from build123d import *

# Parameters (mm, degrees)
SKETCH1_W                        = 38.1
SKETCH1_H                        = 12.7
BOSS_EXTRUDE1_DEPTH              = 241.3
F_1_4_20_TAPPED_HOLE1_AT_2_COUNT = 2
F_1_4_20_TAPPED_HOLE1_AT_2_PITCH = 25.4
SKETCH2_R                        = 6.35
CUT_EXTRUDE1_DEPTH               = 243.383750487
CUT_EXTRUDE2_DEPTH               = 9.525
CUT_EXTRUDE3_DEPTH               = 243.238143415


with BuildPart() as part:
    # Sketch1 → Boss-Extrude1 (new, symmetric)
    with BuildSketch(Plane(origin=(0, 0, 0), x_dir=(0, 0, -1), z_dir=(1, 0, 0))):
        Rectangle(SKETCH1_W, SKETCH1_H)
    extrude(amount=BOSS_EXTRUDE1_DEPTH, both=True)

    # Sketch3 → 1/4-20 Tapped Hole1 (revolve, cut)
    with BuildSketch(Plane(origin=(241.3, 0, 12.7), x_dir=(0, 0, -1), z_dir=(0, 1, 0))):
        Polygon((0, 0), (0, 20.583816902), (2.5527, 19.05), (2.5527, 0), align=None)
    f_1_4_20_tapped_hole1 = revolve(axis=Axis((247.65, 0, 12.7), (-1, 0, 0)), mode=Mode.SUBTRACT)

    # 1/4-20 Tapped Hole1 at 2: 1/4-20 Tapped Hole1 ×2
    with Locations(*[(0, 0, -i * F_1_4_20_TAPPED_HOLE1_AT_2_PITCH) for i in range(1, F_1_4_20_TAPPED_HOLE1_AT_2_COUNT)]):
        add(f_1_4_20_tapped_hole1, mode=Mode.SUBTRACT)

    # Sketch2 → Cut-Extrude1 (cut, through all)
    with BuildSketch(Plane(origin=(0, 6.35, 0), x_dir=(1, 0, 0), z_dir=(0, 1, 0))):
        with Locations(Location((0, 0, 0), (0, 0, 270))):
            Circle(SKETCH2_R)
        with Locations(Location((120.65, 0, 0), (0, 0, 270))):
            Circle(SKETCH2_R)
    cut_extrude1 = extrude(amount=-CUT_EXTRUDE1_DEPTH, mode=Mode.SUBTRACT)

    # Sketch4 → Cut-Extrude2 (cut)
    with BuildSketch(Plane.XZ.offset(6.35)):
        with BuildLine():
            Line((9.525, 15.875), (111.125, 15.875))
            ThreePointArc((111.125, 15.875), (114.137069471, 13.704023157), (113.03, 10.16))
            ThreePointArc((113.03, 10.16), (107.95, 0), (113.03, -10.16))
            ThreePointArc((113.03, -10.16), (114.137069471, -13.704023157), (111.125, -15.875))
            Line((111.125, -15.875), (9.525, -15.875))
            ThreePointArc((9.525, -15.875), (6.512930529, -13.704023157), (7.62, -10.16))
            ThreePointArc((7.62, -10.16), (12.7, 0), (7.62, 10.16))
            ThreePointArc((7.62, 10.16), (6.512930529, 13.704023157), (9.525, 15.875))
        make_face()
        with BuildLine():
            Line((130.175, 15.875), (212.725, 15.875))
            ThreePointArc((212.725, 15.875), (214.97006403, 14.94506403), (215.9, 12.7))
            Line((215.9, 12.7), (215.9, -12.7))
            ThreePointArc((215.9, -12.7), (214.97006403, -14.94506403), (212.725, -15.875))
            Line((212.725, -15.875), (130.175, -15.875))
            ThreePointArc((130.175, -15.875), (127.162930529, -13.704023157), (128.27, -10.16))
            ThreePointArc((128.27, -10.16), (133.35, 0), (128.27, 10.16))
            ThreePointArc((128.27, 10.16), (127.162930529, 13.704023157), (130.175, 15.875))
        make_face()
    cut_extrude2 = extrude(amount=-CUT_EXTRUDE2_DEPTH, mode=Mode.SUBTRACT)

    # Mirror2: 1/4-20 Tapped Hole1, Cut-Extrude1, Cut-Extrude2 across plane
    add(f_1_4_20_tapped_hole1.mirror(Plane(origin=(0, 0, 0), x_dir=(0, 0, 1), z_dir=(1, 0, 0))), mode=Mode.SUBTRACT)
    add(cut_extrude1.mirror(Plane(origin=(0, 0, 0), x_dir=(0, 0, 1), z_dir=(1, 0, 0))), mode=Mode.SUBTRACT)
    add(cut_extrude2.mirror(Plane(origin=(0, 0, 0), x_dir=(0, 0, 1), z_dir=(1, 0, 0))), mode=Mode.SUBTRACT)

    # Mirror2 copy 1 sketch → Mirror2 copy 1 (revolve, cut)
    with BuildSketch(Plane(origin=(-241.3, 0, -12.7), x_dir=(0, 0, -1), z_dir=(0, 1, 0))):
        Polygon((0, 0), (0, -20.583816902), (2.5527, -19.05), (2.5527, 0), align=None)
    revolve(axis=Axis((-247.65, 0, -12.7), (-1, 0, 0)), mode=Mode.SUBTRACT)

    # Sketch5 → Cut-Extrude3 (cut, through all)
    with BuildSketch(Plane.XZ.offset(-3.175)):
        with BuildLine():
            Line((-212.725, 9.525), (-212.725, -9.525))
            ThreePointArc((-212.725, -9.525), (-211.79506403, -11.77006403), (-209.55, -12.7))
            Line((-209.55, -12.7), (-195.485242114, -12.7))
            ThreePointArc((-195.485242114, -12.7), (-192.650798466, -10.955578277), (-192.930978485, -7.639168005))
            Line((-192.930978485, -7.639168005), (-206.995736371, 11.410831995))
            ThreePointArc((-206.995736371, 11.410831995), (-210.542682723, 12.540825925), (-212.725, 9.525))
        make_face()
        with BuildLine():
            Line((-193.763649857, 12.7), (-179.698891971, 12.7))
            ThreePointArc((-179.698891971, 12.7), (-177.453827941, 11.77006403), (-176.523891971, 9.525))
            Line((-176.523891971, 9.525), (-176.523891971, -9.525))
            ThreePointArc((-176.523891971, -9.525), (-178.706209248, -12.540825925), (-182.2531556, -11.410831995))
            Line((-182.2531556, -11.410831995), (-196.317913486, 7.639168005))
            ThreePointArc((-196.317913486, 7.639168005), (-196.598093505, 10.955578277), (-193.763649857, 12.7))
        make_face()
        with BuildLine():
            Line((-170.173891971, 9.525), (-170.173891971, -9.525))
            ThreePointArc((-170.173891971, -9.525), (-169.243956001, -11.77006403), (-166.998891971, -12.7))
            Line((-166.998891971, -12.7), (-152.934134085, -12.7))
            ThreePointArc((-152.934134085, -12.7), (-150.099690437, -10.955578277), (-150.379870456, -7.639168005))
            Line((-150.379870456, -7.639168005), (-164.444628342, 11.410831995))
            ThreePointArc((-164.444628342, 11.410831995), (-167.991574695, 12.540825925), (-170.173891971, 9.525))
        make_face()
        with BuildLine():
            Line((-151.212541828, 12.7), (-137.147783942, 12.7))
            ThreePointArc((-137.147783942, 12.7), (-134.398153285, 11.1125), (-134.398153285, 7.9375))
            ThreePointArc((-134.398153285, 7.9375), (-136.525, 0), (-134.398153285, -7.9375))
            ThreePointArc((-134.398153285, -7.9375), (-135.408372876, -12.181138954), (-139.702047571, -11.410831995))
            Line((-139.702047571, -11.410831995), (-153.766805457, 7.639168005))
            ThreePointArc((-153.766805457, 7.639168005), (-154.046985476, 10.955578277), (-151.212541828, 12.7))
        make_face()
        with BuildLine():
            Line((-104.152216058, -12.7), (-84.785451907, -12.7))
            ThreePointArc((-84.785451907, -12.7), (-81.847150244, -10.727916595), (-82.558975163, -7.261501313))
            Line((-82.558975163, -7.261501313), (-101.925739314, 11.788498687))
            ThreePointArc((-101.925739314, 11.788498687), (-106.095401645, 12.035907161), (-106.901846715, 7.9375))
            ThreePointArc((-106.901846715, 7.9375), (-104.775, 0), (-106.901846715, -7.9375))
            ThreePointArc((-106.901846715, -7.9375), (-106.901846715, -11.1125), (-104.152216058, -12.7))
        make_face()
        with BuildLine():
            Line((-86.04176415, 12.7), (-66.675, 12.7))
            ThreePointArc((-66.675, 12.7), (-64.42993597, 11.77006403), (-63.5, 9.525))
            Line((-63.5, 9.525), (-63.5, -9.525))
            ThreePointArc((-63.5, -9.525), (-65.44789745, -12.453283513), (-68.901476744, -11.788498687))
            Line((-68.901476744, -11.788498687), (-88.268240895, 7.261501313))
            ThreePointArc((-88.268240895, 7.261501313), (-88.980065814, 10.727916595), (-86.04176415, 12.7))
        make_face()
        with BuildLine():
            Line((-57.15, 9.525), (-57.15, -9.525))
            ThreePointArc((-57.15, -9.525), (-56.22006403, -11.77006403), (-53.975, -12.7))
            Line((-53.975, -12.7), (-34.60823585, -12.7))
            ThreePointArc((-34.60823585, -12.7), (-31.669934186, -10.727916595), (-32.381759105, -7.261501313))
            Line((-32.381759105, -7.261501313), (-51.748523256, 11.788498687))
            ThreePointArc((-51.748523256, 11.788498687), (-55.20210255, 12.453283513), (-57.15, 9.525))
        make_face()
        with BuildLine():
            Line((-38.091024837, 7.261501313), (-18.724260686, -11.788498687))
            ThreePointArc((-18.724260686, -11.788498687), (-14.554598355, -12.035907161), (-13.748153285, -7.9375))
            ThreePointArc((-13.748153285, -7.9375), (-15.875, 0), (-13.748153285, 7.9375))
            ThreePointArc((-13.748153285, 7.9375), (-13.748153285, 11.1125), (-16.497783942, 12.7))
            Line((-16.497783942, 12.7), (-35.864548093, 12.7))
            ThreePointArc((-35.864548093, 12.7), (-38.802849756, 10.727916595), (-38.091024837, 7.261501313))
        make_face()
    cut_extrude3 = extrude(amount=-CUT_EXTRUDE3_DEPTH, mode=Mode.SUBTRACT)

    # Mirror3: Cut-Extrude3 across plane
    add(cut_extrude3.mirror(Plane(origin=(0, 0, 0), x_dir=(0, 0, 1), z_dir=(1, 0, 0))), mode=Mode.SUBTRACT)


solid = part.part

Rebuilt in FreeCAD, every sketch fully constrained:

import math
import FreeCAD as App
import Part
import Sketcher

V = App.Vector
Q = App.Units.Quantity

doc = App.newDocument("Part")
params = doc.addObject("Spreadsheet::Sheet", "Params")
for row, (alias, value) in enumerate([
    ("sketch1_width", "0.5 in"),
    ("sketch1_height", "1.5 in"),
    ("pad1_length", "19 in"),
    ("sketch2_width", "0.75 in"),
    ("groove_angle", "360 deg"),
    ("linearpattern_pitch", "1 in"),
    ("sketch3_diameter", "0.5 in"),
    ("sketch4_radius", "0.5 in"),
    ("sketch4_width", "4 in"),
    ("sketch4_height", "1 in"),
    ("sketch4_radius2", "0.125 in"),
    ("pocket2_length", "0.375 in"),
    ("sketch5_width", "0.75 in"),
    ("groove2_angle", "360 deg"),
    ("sketch6_radius", "0.125 in"),
    ("sketch6_radius2", "0.625 in"),
    ("sketch6_height", "0.75 in"),
], start=1):
    params.set(f"A{row}", alias)
    params.set(f"B{row}", "=" + value)
    params.setAlias(f"B{row}", alias)

body = doc.addObject("PartDesign::Body", "Body")

sketch1 = doc.addObject("Sketcher::SketchObject", "Sketch")
body.addObject(sketch1)
sketch1.AttachmentSupport = (doc.YZ_Plane, [""])
sketch1.MapMode = "FlatFace"
sketch1.addGeometry([
    Part.LineSegment(V(6.35, 19.05, 0), V(-6.35, 19.05, 0)),
    Part.LineSegment(V(-6.35, 19.05, 0), V(-6.35, -19.05, 0)),
    Part.LineSegment(V(-6.35, -19.05, 0), V(6.35, -19.05, 0)),
    Part.LineSegment(V(6.35, -19.05, 0), V(6.35, 19.05, 0)),
], False)
sketch1.addConstraint([
    Sketcher.Constraint("Coincident", 0, 2, 1, 1),
    Sketcher.Constraint("Coincident", 1, 2, 2, 1),
    Sketcher.Constraint("Coincident", 2, 2, 3, 1),
    Sketcher.Constraint("Coincident", 3, 2, 0, 1),
    Sketcher.Constraint("Horizontal", 0),
    Sketcher.Constraint("Vertical", 1),
    Sketcher.Constraint("Horizontal", 2),
    Sketcher.Constraint("Vertical", 3),
    Sketcher.Constraint("Symmetric", 0, 2, 2, 2, -1, 1),
    Sketcher.Constraint("DistanceX", 0, 2, 0, 1, Q("0.5 in")),
    Sketcher.Constraint("DistanceY", 1, 2, 1, 1, Q("1.5 in")),
])
sketch1.setExpression("Constraints[9]", "Params.sketch1_width")
sketch1.setExpression("Constraints[10]", "Params.sketch1_height")
pad1 = doc.addObject("PartDesign::Pad", "Pad")
body.addObject(pad1)
pad1.Profile = sketch1
pad1.setExpression("Length", "Params.pad1_length")
pad1.Midplane = True

sketch2 = doc.addObject("Sketcher::SketchObject", "Sketch001")
body.addObject(sketch2)
sketch2.AttachmentSupport = (doc.XZ_Plane, [""])
sketch2.MapMode = "FlatFace"
sketch2.addGeometry([
    Part.LineSegment(V(220.716183, 12.7, 0), V(241.3, 12.7, 0)),
    Part.LineSegment(V(241.3, 12.7, 0), V(241.3, 10.1473, 0)),
    Part.LineSegment(V(241.3, 10.1473, 0), V(222.25, 10.1473, 0)),
    Part.LineSegment(V(222.25, 10.1473, 0), V(220.716183, 12.7, 0)),
], False)
sketch2.addGeometry(Part.LineSegment(V(241.3, 12.7, 0), V(220.716183, 12.7, 0)), True)
sketch2.addConstraint([
    Sketcher.Constraint("Coincident", 0, 2, 1, 1),
    Sketcher.Constraint("Coincident", 1, 2, 2, 1),
    Sketcher.Constraint("Coincident", 2, 2, 3, 1),
    Sketcher.Constraint("Coincident", 3, 2, 0, 1),
    Sketcher.Constraint("Horizontal", 0),
    Sketcher.Constraint("Vertical", 1),
    Sketcher.Constraint("Horizontal", 2),
    Sketcher.Constraint("Horizontal", 4),
    Sketcher.Constraint("Coincident", 4, 1, 0, 2),
    Sketcher.Constraint("Equal", 0, 4),
    Sketcher.Constraint("Angle", 3, Q("121 deg")),
    Sketcher.Constraint("DistanceX", 2, 2, 2, 1, Q("0.75 in")),
    Sketcher.Constraint("DistanceX", -1, 1, 0, 2, Q("9.5 in")),
    Sketcher.Constraint("DistanceY", -1, 1, 0, 2, Q("0.5 in")),
    Sketcher.Constraint("DistanceY", 1, 2, 1, 1, Q("0.1005 in")),
])
sketch2.setExpression("Constraints[11]", "Params.sketch2_width")
groove = doc.addObject("PartDesign::Groove", "Groove")
body.addObject(groove)
groove.Profile = sketch2
groove.ReferenceAxis = (sketch2, ["Axis0"])
groove.setExpression("Angle", "Params.groove_angle")
doc.recompute()

linearpattern = doc.addObject("PartDesign::LinearPattern", "LinearPattern")
body.addObject(linearpattern)
linearpattern.Originals = [groove]
linearpattern.Direction = (doc.Z_Axis, [""])
linearpattern.Mode = "offset"
linearpattern.setExpression("Offset", "Params.linearpattern_pitch")
linearpattern.Occurrences = 2
linearpattern.Reversed = True
body.Tip = linearpattern

sketch3 = doc.addObject("Sketcher::SketchObject", "Sketch002")
body.addObject(sketch3)
sketch3.AttachmentSupport = (doc.XZ_Plane, [""])
sketch3.MapMode = "FlatFace"
sketch3.AttachmentOffset = App.Placement(V(0, 0, -0.25 * 25.4), App.Rotation())
sketch3.addGeometry([
    Part.Circle(V(0, 0, 0), V(0, 0, 1), 6.35),
    Part.Circle(V(120.65, 0, 0), V(0, 0, 1), 6.35),
], False)
sketch3.addConstraint([
    Sketcher.Constraint("Coincident", 0, 3, -1, 1),
    Sketcher.Constraint("Equal", 0, 1),
    Sketcher.Constraint("PointOnObject", 1, 3, -1),
    Sketcher.Constraint("Diameter", 0, Q("0.5 in")),
    Sketcher.Constraint("DistanceX", -1, 1, 1, 3, Q("4.75 in")),
])
sketch3.setExpression("Constraints[3]", "Params.sketch3_diameter")
pocket1 = doc.addObject("PartDesign::Pocket", "Pocket")
body.addObject(pocket1)
pocket1.Profile = sketch3
pocket1.Type = "ThroughAll"
pocket1.Reversed = True

sketch4 = doc.addObject("Sketcher::SketchObject", "Sketch003")
body.addObject(sketch4)
sketch4.AttachmentSupport = (doc.XZ_Plane, [""])
sketch4.MapMode = "FlatFace"
sketch4.AttachmentOffset = App.Placement(V(0, 0, 0.25 * 25.4), App.Rotation())
sketch4.addGeometry([
    Part.LineSegment(V(111.125, 15.875, 0), V(9.525, 15.875, 0)),
    Part.ArcOfCircle(Part.Circle(V(9.525, 12.7, 0), V(0, 0, 1), 3.175), math.radians(90), math.radians(233.130102)),
    Part.ArcOfCircle(Part.Circle(V(0, 0, 0), V(0, 0, 1), 12.7), math.radians(-53.130102), math.radians(53.130102)),
    Part.ArcOfCircle(Part.Circle(V(9.525, -12.7, 0), V(0, 0, 1), 3.175), math.radians(126.869898), math.radians(270)),
    Part.LineSegment(V(9.525, -15.875, 0), V(111.125, -15.875, 0)),
    Part.ArcOfCircle(Part.Circle(V(111.125, -12.7, 0), V(0, 0, 1), 3.175), math.radians(-90), math.radians(53.130102)),
    Part.ArcOfCircle(Part.Circle(V(120.65, 0, 0), V(0, 0, 1), 12.7), math.radians(126.869898), math.radians(233.130102)),
    Part.ArcOfCircle(Part.Circle(V(111.125, 12.7, 0), V(0, 0, 1), 3.175), math.radians(-53.130102), math.radians(90)),
    Part.LineSegment(V(212.725, 15.875, 0), V(130.175, 15.875, 0)),
    Part.ArcOfCircle(Part.Circle(V(130.175, 12.7, 0), V(0, 0, 1), 3.175), math.radians(90), math.radians(233.130102)),
    Part.ArcOfCircle(Part.Circle(V(120.65, 0, 0), V(0, 0, 1), 12.7), math.radians(-53.130102), math.radians(53.130102)),
    Part.ArcOfCircle(Part.Circle(V(130.175, -12.7, 0), V(0, 0, 1), 3.175), math.radians(126.869898), math.radians(270)),
    Part.LineSegment(V(130.175, -15.875, 0), V(212.725, -15.875, 0)),
    Part.ArcOfCircle(Part.Circle(V(212.725, -12.7, 0), V(0, 0, 1), 3.175), math.radians(-90), math.radians(0)),
    Part.LineSegment(V(215.9, -12.7, 0), V(215.9, 12.7, 0)),
    Part.ArcOfCircle(Part.Circle(V(212.725, 12.7, 0), V(0, 0, 1), 3.175), math.radians(0), math.radians(90)),
], False)
sketch4.addConstraint([
    Sketcher.Constraint("Tangent", 0, 2, 1, 1),
    Sketcher.Constraint("Tangent", 1, 2, 2, 2),
    Sketcher.Constraint("Tangent", 2, 1, 3, 1),
    Sketcher.Constraint("Tangent", 3, 2, 4, 1),
    Sketcher.Constraint("Tangent", 4, 2, 5, 1),
    Sketcher.Constraint("Tangent", 5, 2, 6, 2),
    Sketcher.Constraint("Tangent", 6, 1, 7, 1),
    Sketcher.Constraint("Tangent", 7, 2, 0, 1),
    Sketcher.Constraint("Tangent", 8, 2, 9, 1),
    Sketcher.Constraint("Tangent", 9, 2, 10, 2),
    Sketcher.Constraint("Tangent", 10, 1, 11, 1),
    Sketcher.Constraint("Tangent", 11, 2, 12, 1),
    Sketcher.Constraint("Tangent", 12, 2, 13, 1),
    Sketcher.Constraint("Tangent", 13, 2, 14, 1),
    Sketcher.Constraint("Tangent", 14, 2, 15, 1),
    Sketcher.Constraint("Tangent", 15, 2, 8, 1),
    Sketcher.Constraint("Horizontal", 0),
    Sketcher.Constraint("Horizontal", 4),
    Sketcher.Constraint("Horizontal", 8),
    Sketcher.Constraint("Horizontal", 12),
    Sketcher.Constraint("Vertical", 14),
    Sketcher.Constraint("Coincident", 2, 3, -1, 1),
    Sketcher.Constraint("Coincident", 10, 3, 6, 3),
    Sketcher.Constraint("Equal", 1, 3),
    Sketcher.Constraint("Equal", 3, 5),
    Sketcher.Constraint("Equal", 2, 6),
    Sketcher.Constraint("Equal", 5, 7),
    Sketcher.Constraint("Equal", 7, 9),
    Sketcher.Constraint("Equal", 6, 10),
    Sketcher.Constraint("Equal", 9, 11),
    Sketcher.Constraint("Equal", 11, 13),
    Sketcher.Constraint("Equal", 13, 15),
    Sketcher.Constraint("Symmetric", 5, 3, 7, 3, -1),
    Sketcher.Constraint("Horizontal", 7, 3, 9, 3),
    Sketcher.Constraint("Horizontal", 5, 3, 11, 3),
    Sketcher.Constraint("Radius", 2, Q("0.5 in")),
    Sketcher.Constraint("DistanceX", 0, 2, 0, 1, Q("4 in")),
    Sketcher.Constraint("DistanceY", 14, 1, 14, 2, Q("1 in")),
    Sketcher.Constraint("Radius", 1, Q("0.125 in")),
    Sketcher.Constraint("DistanceX", 5, 3, 13, 3, Q("4 in")),
])
sketch4.setExpression("Constraints[35]", "Params.sketch4_radius")
sketch4.setExpression("Constraints[36]", "Params.sketch4_width")
sketch4.setExpression("Constraints[37]", "Params.sketch4_height")
sketch4.setExpression("Constraints[38]", "Params.sketch4_radius2")
pocket2 = doc.addObject("PartDesign::Pocket", "Pocket001")
body.addObject(pocket2)
pocket2.Profile = sketch4
pocket2.setExpression("Length", "Params.pocket2_length")
doc.recompute()

mirrored = doc.addObject("PartDesign::Mirrored", "Mirrored")
body.addObject(mirrored)
mirrored.Originals = [groove, pocket1, pocket2]
mirrored.MirrorPlane = (doc.YZ_Plane, [""])
body.Tip = mirrored

sketch5 = doc.addObject("Sketcher::SketchObject", "Sketch004")
body.addObject(sketch5)
sketch5.AttachmentSupport = (doc.XZ_Plane, [""])
sketch5.MapMode = "FlatFace"
sketch5.addGeometry([
    Part.LineSegment(V(-241.3, -12.7, 0), V(-220.716183, -12.7, 0)),
    Part.LineSegment(V(-220.716183, -12.7, 0), V(-222.25, -15.2527, 0)),
    Part.LineSegment(V(-222.25, -15.2527, 0), V(-241.3, -15.2527, 0)),
    Part.LineSegment(V(-241.3, -15.2527, 0), V(-241.3, -12.7, 0)),
], False)
sketch5.addGeometry(Part.LineSegment(V(-220.716183, -12.7, 0), V(-241.3, -12.7, 0)), True)
sketch5.addConstraint([
    Sketcher.Constraint("Coincident", 0, 2, 1, 1),
    Sketcher.Constraint("Coincident", 1, 2, 2, 1),
    Sketcher.Constraint("Coincident", 2, 2, 3, 1),
    Sketcher.Constraint("Coincident", 3, 2, 0, 1),
    Sketcher.Constraint("Horizontal", 0),
    Sketcher.Constraint("Horizontal", 2),
    Sketcher.Constraint("Vertical", 3),
    Sketcher.Constraint("Horizontal", 4),
    Sketcher.Constraint("Coincident", 4, 1, 0, 2),
    Sketcher.Constraint("Vertical", 2, 2, 4, 2),
    Sketcher.Constraint("Angle", 1, Q("-121 deg")),
    Sketcher.Constraint("DistanceX", 2, 2, 2, 1, Q("0.75 in")),
    Sketcher.Constraint("DistanceY", 0, 2, -1, 1, Q("0.5 in")),
    Sketcher.Constraint("DistanceX", 2, 2, -1, 1, Q("9.5 in")),
    Sketcher.Constraint("DistanceY", 3, 1, 3, 2, Q("0.1005 in")),
])
sketch5.setExpression("Constraints[11]", "Params.sketch5_width")
groove2 = doc.addObject("PartDesign::Groove", "Groove001")
body.addObject(groove2)
groove2.Profile = sketch5
groove2.ReferenceAxis = (sketch5, ["Axis0"])
groove2.setExpression("Angle", "Params.groove2_angle")

sketch6 = doc.addObject("Sketcher::SketchObject", "Sketch005")
body.addObject(sketch6)
sketch6.AttachmentSupport = (doc.XZ_Plane, [""])
sketch6.MapMode = "FlatFace"
sketch6.AttachmentOffset = App.Placement(V(0, 0, -0.125 * 25.4), App.Rotation())
sketch6.addGeometry([
    Part.LineSegment(V(-212.725, 9.525, 0), V(-212.725, -9.525, 0)),
    Part.ArcOfCircle(Part.Circle(V(-209.55, -9.525, 0), V(0, 0, 1), 3.175), math.radians(-180), math.radians(-90)),
    Part.LineSegment(V(-209.55, -12.7, 0), V(-195.485242, -12.7, 0)),
    Part.ArcOfCircle(Part.Circle(V(-195.485242, -9.525, 0), V(0, 0, 1), 3.175), math.radians(-90), math.radians(36.43873)),
    Part.LineSegment(V(-192.930978, -7.639168, 0), V(-206.995736, 11.410832, 0)),
    Part.ArcOfCircle(Part.Circle(V(-209.55, 9.525, 0), V(0, 0, 1), 3.175), math.radians(36.43873), math.radians(180)),
    Part.LineSegment(V(-179.698892, 12.7, 0), V(-193.76365, 12.7, 0)),
    Part.ArcOfCircle(Part.Circle(V(-193.76365, 9.525, 0), V(0, 0, 1), 3.175), math.radians(90), math.radians(216.43873)),
    Part.LineSegment(V(-196.317913, 7.639168, 0), V(-182.253156, -11.410832, 0)),
    Part.ArcOfCircle(Part.Circle(V(-179.698892, -9.525, 0), V(0, 0, 1), 3.175), math.radians(-143.56127), math.radians(0)),
    Part.LineSegment(V(-176.523892, -9.525, 0), V(-176.523892, 9.525, 0)),
    Part.ArcOfCircle(Part.Circle(V(-179.698892, 9.525, 0), V(0, 0, 1), 3.175), math.radians(0), math.radians(90)),
    Part.LineSegment(V(-170.173892, 9.525, 0), V(-170.173892, -9.525, 0)),
    Part.ArcOfCircle(Part.Circle(V(-166.998892, -9.525, 0), V(0, 0, 1), 3.175), math.radians(-180), math.radians(-90)),
    Part.LineSegment(V(-166.998892, -12.7, 0), V(-152.934134, -12.7, 0)),
    Part.ArcOfCircle(Part.Circle(V(-152.934134, -9.525, 0), V(0, 0, 1), 3.175), math.radians(-90), math.radians(36.43873)),
    Part.LineSegment(V(-150.37987, -7.639168, 0), V(-164.444628, 11.410832, 0)),
    Part.ArcOfCircle(Part.Circle(V(-166.998892, 9.525, 0), V(0, 0, 1), 3.175), math.radians(36.43873), math.radians(180)),
    Part.LineSegment(V(-137.147784, 12.7, 0), V(-151.212542, 12.7, 0)),
    Part.ArcOfCircle(Part.Circle(V(-151.212542, 9.525, 0), V(0, 0, 1), 3.175), math.radians(90), math.radians(216.43873)),
    Part.LineSegment(V(-153.766805, 7.639168, 0), V(-139.702048, -11.410832, 0)),
    Part.ArcOfCircle(Part.Circle(V(-137.147784, -9.525, 0), V(0, 0, 1), 3.175), math.radians(-143.56127), math.radians(30)),
    Part.ArcOfCircle(Part.Circle(V(-120.65, 0, 0), V(0, 0, 1), 15.875), math.radians(150), math.radians(210)),
    Part.ArcOfCircle(Part.Circle(V(-137.147784, 9.525, 0), V(0, 0, 1), 3.175), math.radians(-30), math.radians(90)),
    Part.LineSegment(V(-104.152216, -12.7, 0), V(-84.785452, -12.7, 0)),
    Part.ArcOfCircle(Part.Circle(V(-84.785452, -9.525, 0), V(0, 0, 1), 3.175), math.radians(-90), math.radians(45.47242)),
    Part.LineSegment(V(-82.558975, -7.261501, 0), V(-101.925739, 11.788499, 0)),
    Part.ArcOfCircle(Part.Circle(V(-104.152216, 9.525, 0), V(0, 0, 1), 3.175), math.radians(45.47242), math.radians(210)),
    Part.ArcOfCircle(Part.Circle(V(-120.65, 0, 0), V(0, 0, 1), 15.875), math.radians(-30), math.radians(30)),
    Part.ArcOfCircle(Part.Circle(V(-104.152216, -9.525, 0), V(0, 0, 1), 3.175), math.radians(150), math.radians(270)),
    Part.LineSegment(V(-66.675, 12.7, 0), V(-86.041764, 12.7, 0)),
    Part.ArcOfCircle(Part.Circle(V(-86.041764, 9.525, 0), V(0, 0, 1), 3.175), math.radians(90), math.radians(225.47242)),
    Part.LineSegment(V(-88.268241, 7.261501, 0), V(-68.901477, -11.788499, 0)),
    Part.ArcOfCircle(Part.Circle(V(-66.675, -9.525, 0), V(0, 0, 1), 3.175), math.radians(-134.52758), math.radians(0)),
    Part.LineSegment(V(-63.5, -9.525, 0), V(-63.5, 9.525, 0)),
    Part.ArcOfCircle(Part.Circle(V(-66.675, 9.525, 0), V(0, 0, 1), 3.175), math.radians(0), math.radians(90)),
    Part.LineSegment(V(-57.15, 9.525, 0), V(-57.15, -9.525, 0)),
    Part.ArcOfCircle(Part.Circle(V(-53.975, -9.525, 0), V(0, 0, 1), 3.175), math.radians(-180), math.radians(-90)),
    Part.LineSegment(V(-53.975, -12.7, 0), V(-34.608236, -12.7, 0)),
    Part.ArcOfCircle(Part.Circle(V(-34.608236, -9.525, 0), V(0, 0, 1), 3.175), math.radians(-90), math.radians(45.47242)),
    Part.LineSegment(V(-32.381759, -7.261501, 0), V(-51.748523, 11.788499, 0)),
    Part.ArcOfCircle(Part.Circle(V(-53.975, 9.525, 0), V(0, 0, 1), 3.175), math.radians(45.47242), math.radians(180)),
    Part.LineSegment(V(-38.091025, 7.261501, 0), V(-18.724261, -11.788499, 0)),
    Part.ArcOfCircle(Part.Circle(V(-16.497784, -9.525, 0), V(0, 0, 1), 3.175), math.radians(-134.52758), math.radians(30)),
    Part.ArcOfCircle(Part.Circle(V(0, 0, 0), V(0, 0, 1), 15.875), math.radians(150), math.radians(210)),
    Part.ArcOfCircle(Part.Circle(V(-16.497784, 9.525, 0), V(0, 0, 1), 3.175), math.radians(-30), math.radians(90)),
    Part.LineSegment(V(-16.497784, 12.7, 0), V(-35.864548, 12.7, 0)),
    Part.ArcOfCircle(Part.Circle(V(-35.864548, 9.525, 0), V(0, 0, 1), 3.175), math.radians(90), math.radians(225.47242)),
], False)
sketch6.addConstraint([
    Sketcher.Constraint("Tangent", 0, 2, 1, 1),
    Sketcher.Constraint("Tangent", 1, 2, 2, 1),
    Sketcher.Constraint("Tangent", 2, 2, 3, 1),
    Sketcher.Constraint("Tangent", 3, 2, 4, 1),
    Sketcher.Constraint("Tangent", 4, 2, 5, 1),
    Sketcher.Constraint("Tangent", 5, 2, 0, 1),
    Sketcher.Constraint("Tangent", 6, 2, 7, 1),
    Sketcher.Constraint("Tangent", 7, 2, 8, 1),
    Sketcher.Constraint("Tangent", 8, 2, 9, 1),
    Sketcher.Constraint("Tangent", 9, 2, 10, 1),
    Sketcher.Constraint("Tangent", 10, 2, 11, 1),
    Sketcher.Constraint("Tangent", 11, 2, 6, 1),
    Sketcher.Constraint("Tangent", 12, 2, 13, 1),
    Sketcher.Constraint("Tangent", 13, 2, 14, 1),
    Sketcher.Constraint("Tangent", 14, 2, 15, 1),
    Sketcher.Constraint("Tangent", 15, 2, 16, 1),
    Sketcher.Constraint("Tangent", 16, 2, 17, 1),
    Sketcher.Constraint("Tangent", 17, 2, 12, 1),
    Sketcher.Constraint("Tangent", 18, 2, 19, 1),
    Sketcher.Constraint("Tangent", 19, 2, 20, 1),
    Sketcher.Constraint("Tangent", 20, 2, 21, 1),
    Sketcher.Constraint("Tangent", 21, 2, 22, 2),
    Sketcher.Constraint("Tangent", 22, 1, 23, 1),
    Sketcher.Constraint("Tangent", 23, 2, 18, 1),
    Sketcher.Constraint("Tangent", 24, 2, 25, 1),
    Sketcher.Constraint("Tangent", 25, 2, 26, 1),
    Sketcher.Constraint("Tangent", 26, 2, 27, 1),
    Sketcher.Constraint("Tangent", 27, 2, 28, 2),
    Sketcher.Constraint("Tangent", 28, 1, 29, 1),
    Sketcher.Constraint("Tangent", 29, 2, 24, 1),
    Sketcher.Constraint("Tangent", 30, 2, 31, 1),
    Sketcher.Constraint("Tangent", 31, 2, 32, 1),
    Sketcher.Constraint("Tangent", 32, 2, 33, 1),
    Sketcher.Constraint("Tangent", 33, 2, 34, 1),
    Sketcher.Constraint("Tangent", 34, 2, 35, 1),
    Sketcher.Constraint("Tangent", 35, 2, 30, 1),
    Sketcher.Constraint("Tangent", 36, 2, 37, 1),
    Sketcher.Constraint("Tangent", 37, 2, 38, 1),
    Sketcher.Constraint("Tangent", 38, 2, 39, 1),
    Sketcher.Constraint("Tangent", 39, 2, 40, 1),
    Sketcher.Constraint("Tangent", 40, 2, 41, 1),
    Sketcher.Constraint("Tangent", 41, 2, 36, 1),
    Sketcher.Constraint("Tangent", 42, 2, 43, 1),
    Sketcher.Constraint("Tangent", 43, 2, 44, 2),
    Sketcher.Constraint("Tangent", 44, 1, 45, 1),
    Sketcher.Constraint("Tangent", 45, 2, 46, 1),
    Sketcher.Constraint("Tangent", 46, 2, 47, 1),
    Sketcher.Constraint("Tangent", 47, 2, 42, 1),
    Sketcher.Constraint("Vertical", 0),
    Sketcher.Constraint("Horizontal", 2),
    Sketcher.Constraint("Horizontal", 6),
    Sketcher.Constraint("Vertical", 10),
    Sketcher.Constraint("Vertical", 12),
    Sketcher.Constraint("Horizontal", 14),
    Sketcher.Constraint("Horizontal", 18),
    Sketcher.Constraint("Horizontal", 24),
    Sketcher.Constraint("Horizontal", 30),
    Sketcher.Constraint("Vertical", 34),
    Sketcher.Constraint("Vertical", 36),
    Sketcher.Constraint("Horizontal", 38),
    Sketcher.Constraint("Horizontal", 46),
    Sketcher.Constraint("Coincident", 44, 3, -1, 1),
    Sketcher.Constraint("Coincident", 28, 3, 22, 3),
    Sketcher.Constraint("Equal", 1, 3),
    Sketcher.Constraint("Equal", 3, 5),
    Sketcher.Constraint("Equal", 5, 7),
    Sketcher.Constraint("Equal", 7, 9),
    Sketcher.Constraint("Equal", 9, 11),
    Sketcher.Constraint("Equal", 11, 13),
    Sketcher.Constraint("Equal", 13, 15),
    Sketcher.Constraint("Equal", 15, 17),
    Sketcher.Constraint("Equal", 17, 19),
    Sketcher.Constraint("Equal", 19, 21),
    Sketcher.Constraint("Equal", 21, 23),
    Sketcher.Constraint("Equal", 23, 25),
    Sketcher.Constraint("Equal", 25, 27),
    Sketcher.Constraint("Equal", 22, 28),
    Sketcher.Constraint("Equal", 27, 29),
    Sketcher.Constraint("Equal", 29, 31),
    Sketcher.Constraint("Equal", 31, 33),
    Sketcher.Constraint("Equal", 33, 35),
    Sketcher.Constraint("Equal", 35, 37),
    Sketcher.Constraint("Equal", 37, 39),
    Sketcher.Constraint("Equal", 39, 41),
    Sketcher.Constraint("Equal", 41, 43),
    Sketcher.Constraint("Equal", 28, 44),
    Sketcher.Constraint("Equal", 43, 45),
    Sketcher.Constraint("Equal", 45, 47),
    Sketcher.Constraint("Symmetric", 21, 3, 23, 3, -1),
    Sketcher.Constraint("Parallel", 4, 8),
    Sketcher.Constraint("Parallel", 8, 16),
    Sketcher.Constraint("Parallel", 16, 20),
    Sketcher.Constraint("Parallel", 26, 32),
    Sketcher.Constraint("Parallel", 32, 40),
    Sketcher.Constraint("Parallel", 40, 42),
    Sketcher.Constraint("Horizontal", 5, 3, 7, 3),
    Sketcher.Constraint("Horizontal", 3, 3, 9, 3),
    Sketcher.Constraint("Horizontal", 9, 3, 13, 3),
    Sketcher.Constraint("Horizontal", 11, 3, 17, 3),
    Sketcher.Constraint("Horizontal", 17, 3, 19, 3),
    Sketcher.Constraint("Horizontal", 15, 3, 21, 3),
    Sketcher.Constraint("Horizontal", 21, 3, 25, 3),
    Sketcher.Constraint("Horizontal", 23, 3, 27, 3),
    Sketcher.Constraint("Horizontal", 27, 3, 31, 3),
    Sketcher.Constraint("Horizontal", 29, 3, 33, 3),
    Sketcher.Constraint("Horizontal", 33, 3, 37, 3),
    Sketcher.Constraint("Horizontal", 35, 3, 41, 3),
    Sketcher.Constraint("Horizontal", 39, 3, 43, 3),
    Sketcher.Constraint("Horizontal", 41, 3, 45, 3),
    Sketcher.Constraint("Radius", 1, Q("0.125 in")),
    Sketcher.Constraint("Radius", 22, Q("0.625 in")),
    Sketcher.Constraint("DistanceY", 0, 2, 0, 1, Q("0.75 in")),
    Sketcher.Constraint("DistanceX", 33, 2, -1, 1, Q("2.5 in")),
    Sketcher.Constraint("DistanceX", 1, 3, -1, 1, Q("8.25 in")),
    Sketcher.Constraint("DistanceX", 22, 3, -1, 1, Q("4.75 in")),
    Sketcher.Constraint("DistanceX", 36, 2, -1, 1, Q("2.25 in")),
    Sketcher.Constraint("DistanceY", 25, 2, -1, 1, 7.261501),
    Sketcher.Constraint("DistanceX", 2, 1, 2, 2, 14.064758),
    Sketcher.Constraint("DistanceX", 7, 3, -1, 1, 193.76365),
    Sketcher.Constraint("DistanceX", 13, 3, -1, 1, 166.998892),
])
sketch6.setExpression("Constraints[109]", "Params.sketch6_radius")
sketch6.setExpression("Constraints[110]", "Params.sketch6_radius2")
sketch6.setExpression("Constraints[111]", "Params.sketch6_height")
pocket3 = doc.addObject("PartDesign::Pocket", "Pocket002")
body.addObject(pocket3)
pocket3.Profile = sketch6
pocket3.Type = "ThroughAll"
doc.recompute()

mirrored2 = doc.addObject("PartDesign::Mirrored", "Mirrored001")
body.addObject(mirrored2)
mirrored2.Originals = [pocket3]
mirrored2.MirrorPlane = (doc.YZ_Plane, [""])
body.Tip = mirrored2

doc.recompute()
